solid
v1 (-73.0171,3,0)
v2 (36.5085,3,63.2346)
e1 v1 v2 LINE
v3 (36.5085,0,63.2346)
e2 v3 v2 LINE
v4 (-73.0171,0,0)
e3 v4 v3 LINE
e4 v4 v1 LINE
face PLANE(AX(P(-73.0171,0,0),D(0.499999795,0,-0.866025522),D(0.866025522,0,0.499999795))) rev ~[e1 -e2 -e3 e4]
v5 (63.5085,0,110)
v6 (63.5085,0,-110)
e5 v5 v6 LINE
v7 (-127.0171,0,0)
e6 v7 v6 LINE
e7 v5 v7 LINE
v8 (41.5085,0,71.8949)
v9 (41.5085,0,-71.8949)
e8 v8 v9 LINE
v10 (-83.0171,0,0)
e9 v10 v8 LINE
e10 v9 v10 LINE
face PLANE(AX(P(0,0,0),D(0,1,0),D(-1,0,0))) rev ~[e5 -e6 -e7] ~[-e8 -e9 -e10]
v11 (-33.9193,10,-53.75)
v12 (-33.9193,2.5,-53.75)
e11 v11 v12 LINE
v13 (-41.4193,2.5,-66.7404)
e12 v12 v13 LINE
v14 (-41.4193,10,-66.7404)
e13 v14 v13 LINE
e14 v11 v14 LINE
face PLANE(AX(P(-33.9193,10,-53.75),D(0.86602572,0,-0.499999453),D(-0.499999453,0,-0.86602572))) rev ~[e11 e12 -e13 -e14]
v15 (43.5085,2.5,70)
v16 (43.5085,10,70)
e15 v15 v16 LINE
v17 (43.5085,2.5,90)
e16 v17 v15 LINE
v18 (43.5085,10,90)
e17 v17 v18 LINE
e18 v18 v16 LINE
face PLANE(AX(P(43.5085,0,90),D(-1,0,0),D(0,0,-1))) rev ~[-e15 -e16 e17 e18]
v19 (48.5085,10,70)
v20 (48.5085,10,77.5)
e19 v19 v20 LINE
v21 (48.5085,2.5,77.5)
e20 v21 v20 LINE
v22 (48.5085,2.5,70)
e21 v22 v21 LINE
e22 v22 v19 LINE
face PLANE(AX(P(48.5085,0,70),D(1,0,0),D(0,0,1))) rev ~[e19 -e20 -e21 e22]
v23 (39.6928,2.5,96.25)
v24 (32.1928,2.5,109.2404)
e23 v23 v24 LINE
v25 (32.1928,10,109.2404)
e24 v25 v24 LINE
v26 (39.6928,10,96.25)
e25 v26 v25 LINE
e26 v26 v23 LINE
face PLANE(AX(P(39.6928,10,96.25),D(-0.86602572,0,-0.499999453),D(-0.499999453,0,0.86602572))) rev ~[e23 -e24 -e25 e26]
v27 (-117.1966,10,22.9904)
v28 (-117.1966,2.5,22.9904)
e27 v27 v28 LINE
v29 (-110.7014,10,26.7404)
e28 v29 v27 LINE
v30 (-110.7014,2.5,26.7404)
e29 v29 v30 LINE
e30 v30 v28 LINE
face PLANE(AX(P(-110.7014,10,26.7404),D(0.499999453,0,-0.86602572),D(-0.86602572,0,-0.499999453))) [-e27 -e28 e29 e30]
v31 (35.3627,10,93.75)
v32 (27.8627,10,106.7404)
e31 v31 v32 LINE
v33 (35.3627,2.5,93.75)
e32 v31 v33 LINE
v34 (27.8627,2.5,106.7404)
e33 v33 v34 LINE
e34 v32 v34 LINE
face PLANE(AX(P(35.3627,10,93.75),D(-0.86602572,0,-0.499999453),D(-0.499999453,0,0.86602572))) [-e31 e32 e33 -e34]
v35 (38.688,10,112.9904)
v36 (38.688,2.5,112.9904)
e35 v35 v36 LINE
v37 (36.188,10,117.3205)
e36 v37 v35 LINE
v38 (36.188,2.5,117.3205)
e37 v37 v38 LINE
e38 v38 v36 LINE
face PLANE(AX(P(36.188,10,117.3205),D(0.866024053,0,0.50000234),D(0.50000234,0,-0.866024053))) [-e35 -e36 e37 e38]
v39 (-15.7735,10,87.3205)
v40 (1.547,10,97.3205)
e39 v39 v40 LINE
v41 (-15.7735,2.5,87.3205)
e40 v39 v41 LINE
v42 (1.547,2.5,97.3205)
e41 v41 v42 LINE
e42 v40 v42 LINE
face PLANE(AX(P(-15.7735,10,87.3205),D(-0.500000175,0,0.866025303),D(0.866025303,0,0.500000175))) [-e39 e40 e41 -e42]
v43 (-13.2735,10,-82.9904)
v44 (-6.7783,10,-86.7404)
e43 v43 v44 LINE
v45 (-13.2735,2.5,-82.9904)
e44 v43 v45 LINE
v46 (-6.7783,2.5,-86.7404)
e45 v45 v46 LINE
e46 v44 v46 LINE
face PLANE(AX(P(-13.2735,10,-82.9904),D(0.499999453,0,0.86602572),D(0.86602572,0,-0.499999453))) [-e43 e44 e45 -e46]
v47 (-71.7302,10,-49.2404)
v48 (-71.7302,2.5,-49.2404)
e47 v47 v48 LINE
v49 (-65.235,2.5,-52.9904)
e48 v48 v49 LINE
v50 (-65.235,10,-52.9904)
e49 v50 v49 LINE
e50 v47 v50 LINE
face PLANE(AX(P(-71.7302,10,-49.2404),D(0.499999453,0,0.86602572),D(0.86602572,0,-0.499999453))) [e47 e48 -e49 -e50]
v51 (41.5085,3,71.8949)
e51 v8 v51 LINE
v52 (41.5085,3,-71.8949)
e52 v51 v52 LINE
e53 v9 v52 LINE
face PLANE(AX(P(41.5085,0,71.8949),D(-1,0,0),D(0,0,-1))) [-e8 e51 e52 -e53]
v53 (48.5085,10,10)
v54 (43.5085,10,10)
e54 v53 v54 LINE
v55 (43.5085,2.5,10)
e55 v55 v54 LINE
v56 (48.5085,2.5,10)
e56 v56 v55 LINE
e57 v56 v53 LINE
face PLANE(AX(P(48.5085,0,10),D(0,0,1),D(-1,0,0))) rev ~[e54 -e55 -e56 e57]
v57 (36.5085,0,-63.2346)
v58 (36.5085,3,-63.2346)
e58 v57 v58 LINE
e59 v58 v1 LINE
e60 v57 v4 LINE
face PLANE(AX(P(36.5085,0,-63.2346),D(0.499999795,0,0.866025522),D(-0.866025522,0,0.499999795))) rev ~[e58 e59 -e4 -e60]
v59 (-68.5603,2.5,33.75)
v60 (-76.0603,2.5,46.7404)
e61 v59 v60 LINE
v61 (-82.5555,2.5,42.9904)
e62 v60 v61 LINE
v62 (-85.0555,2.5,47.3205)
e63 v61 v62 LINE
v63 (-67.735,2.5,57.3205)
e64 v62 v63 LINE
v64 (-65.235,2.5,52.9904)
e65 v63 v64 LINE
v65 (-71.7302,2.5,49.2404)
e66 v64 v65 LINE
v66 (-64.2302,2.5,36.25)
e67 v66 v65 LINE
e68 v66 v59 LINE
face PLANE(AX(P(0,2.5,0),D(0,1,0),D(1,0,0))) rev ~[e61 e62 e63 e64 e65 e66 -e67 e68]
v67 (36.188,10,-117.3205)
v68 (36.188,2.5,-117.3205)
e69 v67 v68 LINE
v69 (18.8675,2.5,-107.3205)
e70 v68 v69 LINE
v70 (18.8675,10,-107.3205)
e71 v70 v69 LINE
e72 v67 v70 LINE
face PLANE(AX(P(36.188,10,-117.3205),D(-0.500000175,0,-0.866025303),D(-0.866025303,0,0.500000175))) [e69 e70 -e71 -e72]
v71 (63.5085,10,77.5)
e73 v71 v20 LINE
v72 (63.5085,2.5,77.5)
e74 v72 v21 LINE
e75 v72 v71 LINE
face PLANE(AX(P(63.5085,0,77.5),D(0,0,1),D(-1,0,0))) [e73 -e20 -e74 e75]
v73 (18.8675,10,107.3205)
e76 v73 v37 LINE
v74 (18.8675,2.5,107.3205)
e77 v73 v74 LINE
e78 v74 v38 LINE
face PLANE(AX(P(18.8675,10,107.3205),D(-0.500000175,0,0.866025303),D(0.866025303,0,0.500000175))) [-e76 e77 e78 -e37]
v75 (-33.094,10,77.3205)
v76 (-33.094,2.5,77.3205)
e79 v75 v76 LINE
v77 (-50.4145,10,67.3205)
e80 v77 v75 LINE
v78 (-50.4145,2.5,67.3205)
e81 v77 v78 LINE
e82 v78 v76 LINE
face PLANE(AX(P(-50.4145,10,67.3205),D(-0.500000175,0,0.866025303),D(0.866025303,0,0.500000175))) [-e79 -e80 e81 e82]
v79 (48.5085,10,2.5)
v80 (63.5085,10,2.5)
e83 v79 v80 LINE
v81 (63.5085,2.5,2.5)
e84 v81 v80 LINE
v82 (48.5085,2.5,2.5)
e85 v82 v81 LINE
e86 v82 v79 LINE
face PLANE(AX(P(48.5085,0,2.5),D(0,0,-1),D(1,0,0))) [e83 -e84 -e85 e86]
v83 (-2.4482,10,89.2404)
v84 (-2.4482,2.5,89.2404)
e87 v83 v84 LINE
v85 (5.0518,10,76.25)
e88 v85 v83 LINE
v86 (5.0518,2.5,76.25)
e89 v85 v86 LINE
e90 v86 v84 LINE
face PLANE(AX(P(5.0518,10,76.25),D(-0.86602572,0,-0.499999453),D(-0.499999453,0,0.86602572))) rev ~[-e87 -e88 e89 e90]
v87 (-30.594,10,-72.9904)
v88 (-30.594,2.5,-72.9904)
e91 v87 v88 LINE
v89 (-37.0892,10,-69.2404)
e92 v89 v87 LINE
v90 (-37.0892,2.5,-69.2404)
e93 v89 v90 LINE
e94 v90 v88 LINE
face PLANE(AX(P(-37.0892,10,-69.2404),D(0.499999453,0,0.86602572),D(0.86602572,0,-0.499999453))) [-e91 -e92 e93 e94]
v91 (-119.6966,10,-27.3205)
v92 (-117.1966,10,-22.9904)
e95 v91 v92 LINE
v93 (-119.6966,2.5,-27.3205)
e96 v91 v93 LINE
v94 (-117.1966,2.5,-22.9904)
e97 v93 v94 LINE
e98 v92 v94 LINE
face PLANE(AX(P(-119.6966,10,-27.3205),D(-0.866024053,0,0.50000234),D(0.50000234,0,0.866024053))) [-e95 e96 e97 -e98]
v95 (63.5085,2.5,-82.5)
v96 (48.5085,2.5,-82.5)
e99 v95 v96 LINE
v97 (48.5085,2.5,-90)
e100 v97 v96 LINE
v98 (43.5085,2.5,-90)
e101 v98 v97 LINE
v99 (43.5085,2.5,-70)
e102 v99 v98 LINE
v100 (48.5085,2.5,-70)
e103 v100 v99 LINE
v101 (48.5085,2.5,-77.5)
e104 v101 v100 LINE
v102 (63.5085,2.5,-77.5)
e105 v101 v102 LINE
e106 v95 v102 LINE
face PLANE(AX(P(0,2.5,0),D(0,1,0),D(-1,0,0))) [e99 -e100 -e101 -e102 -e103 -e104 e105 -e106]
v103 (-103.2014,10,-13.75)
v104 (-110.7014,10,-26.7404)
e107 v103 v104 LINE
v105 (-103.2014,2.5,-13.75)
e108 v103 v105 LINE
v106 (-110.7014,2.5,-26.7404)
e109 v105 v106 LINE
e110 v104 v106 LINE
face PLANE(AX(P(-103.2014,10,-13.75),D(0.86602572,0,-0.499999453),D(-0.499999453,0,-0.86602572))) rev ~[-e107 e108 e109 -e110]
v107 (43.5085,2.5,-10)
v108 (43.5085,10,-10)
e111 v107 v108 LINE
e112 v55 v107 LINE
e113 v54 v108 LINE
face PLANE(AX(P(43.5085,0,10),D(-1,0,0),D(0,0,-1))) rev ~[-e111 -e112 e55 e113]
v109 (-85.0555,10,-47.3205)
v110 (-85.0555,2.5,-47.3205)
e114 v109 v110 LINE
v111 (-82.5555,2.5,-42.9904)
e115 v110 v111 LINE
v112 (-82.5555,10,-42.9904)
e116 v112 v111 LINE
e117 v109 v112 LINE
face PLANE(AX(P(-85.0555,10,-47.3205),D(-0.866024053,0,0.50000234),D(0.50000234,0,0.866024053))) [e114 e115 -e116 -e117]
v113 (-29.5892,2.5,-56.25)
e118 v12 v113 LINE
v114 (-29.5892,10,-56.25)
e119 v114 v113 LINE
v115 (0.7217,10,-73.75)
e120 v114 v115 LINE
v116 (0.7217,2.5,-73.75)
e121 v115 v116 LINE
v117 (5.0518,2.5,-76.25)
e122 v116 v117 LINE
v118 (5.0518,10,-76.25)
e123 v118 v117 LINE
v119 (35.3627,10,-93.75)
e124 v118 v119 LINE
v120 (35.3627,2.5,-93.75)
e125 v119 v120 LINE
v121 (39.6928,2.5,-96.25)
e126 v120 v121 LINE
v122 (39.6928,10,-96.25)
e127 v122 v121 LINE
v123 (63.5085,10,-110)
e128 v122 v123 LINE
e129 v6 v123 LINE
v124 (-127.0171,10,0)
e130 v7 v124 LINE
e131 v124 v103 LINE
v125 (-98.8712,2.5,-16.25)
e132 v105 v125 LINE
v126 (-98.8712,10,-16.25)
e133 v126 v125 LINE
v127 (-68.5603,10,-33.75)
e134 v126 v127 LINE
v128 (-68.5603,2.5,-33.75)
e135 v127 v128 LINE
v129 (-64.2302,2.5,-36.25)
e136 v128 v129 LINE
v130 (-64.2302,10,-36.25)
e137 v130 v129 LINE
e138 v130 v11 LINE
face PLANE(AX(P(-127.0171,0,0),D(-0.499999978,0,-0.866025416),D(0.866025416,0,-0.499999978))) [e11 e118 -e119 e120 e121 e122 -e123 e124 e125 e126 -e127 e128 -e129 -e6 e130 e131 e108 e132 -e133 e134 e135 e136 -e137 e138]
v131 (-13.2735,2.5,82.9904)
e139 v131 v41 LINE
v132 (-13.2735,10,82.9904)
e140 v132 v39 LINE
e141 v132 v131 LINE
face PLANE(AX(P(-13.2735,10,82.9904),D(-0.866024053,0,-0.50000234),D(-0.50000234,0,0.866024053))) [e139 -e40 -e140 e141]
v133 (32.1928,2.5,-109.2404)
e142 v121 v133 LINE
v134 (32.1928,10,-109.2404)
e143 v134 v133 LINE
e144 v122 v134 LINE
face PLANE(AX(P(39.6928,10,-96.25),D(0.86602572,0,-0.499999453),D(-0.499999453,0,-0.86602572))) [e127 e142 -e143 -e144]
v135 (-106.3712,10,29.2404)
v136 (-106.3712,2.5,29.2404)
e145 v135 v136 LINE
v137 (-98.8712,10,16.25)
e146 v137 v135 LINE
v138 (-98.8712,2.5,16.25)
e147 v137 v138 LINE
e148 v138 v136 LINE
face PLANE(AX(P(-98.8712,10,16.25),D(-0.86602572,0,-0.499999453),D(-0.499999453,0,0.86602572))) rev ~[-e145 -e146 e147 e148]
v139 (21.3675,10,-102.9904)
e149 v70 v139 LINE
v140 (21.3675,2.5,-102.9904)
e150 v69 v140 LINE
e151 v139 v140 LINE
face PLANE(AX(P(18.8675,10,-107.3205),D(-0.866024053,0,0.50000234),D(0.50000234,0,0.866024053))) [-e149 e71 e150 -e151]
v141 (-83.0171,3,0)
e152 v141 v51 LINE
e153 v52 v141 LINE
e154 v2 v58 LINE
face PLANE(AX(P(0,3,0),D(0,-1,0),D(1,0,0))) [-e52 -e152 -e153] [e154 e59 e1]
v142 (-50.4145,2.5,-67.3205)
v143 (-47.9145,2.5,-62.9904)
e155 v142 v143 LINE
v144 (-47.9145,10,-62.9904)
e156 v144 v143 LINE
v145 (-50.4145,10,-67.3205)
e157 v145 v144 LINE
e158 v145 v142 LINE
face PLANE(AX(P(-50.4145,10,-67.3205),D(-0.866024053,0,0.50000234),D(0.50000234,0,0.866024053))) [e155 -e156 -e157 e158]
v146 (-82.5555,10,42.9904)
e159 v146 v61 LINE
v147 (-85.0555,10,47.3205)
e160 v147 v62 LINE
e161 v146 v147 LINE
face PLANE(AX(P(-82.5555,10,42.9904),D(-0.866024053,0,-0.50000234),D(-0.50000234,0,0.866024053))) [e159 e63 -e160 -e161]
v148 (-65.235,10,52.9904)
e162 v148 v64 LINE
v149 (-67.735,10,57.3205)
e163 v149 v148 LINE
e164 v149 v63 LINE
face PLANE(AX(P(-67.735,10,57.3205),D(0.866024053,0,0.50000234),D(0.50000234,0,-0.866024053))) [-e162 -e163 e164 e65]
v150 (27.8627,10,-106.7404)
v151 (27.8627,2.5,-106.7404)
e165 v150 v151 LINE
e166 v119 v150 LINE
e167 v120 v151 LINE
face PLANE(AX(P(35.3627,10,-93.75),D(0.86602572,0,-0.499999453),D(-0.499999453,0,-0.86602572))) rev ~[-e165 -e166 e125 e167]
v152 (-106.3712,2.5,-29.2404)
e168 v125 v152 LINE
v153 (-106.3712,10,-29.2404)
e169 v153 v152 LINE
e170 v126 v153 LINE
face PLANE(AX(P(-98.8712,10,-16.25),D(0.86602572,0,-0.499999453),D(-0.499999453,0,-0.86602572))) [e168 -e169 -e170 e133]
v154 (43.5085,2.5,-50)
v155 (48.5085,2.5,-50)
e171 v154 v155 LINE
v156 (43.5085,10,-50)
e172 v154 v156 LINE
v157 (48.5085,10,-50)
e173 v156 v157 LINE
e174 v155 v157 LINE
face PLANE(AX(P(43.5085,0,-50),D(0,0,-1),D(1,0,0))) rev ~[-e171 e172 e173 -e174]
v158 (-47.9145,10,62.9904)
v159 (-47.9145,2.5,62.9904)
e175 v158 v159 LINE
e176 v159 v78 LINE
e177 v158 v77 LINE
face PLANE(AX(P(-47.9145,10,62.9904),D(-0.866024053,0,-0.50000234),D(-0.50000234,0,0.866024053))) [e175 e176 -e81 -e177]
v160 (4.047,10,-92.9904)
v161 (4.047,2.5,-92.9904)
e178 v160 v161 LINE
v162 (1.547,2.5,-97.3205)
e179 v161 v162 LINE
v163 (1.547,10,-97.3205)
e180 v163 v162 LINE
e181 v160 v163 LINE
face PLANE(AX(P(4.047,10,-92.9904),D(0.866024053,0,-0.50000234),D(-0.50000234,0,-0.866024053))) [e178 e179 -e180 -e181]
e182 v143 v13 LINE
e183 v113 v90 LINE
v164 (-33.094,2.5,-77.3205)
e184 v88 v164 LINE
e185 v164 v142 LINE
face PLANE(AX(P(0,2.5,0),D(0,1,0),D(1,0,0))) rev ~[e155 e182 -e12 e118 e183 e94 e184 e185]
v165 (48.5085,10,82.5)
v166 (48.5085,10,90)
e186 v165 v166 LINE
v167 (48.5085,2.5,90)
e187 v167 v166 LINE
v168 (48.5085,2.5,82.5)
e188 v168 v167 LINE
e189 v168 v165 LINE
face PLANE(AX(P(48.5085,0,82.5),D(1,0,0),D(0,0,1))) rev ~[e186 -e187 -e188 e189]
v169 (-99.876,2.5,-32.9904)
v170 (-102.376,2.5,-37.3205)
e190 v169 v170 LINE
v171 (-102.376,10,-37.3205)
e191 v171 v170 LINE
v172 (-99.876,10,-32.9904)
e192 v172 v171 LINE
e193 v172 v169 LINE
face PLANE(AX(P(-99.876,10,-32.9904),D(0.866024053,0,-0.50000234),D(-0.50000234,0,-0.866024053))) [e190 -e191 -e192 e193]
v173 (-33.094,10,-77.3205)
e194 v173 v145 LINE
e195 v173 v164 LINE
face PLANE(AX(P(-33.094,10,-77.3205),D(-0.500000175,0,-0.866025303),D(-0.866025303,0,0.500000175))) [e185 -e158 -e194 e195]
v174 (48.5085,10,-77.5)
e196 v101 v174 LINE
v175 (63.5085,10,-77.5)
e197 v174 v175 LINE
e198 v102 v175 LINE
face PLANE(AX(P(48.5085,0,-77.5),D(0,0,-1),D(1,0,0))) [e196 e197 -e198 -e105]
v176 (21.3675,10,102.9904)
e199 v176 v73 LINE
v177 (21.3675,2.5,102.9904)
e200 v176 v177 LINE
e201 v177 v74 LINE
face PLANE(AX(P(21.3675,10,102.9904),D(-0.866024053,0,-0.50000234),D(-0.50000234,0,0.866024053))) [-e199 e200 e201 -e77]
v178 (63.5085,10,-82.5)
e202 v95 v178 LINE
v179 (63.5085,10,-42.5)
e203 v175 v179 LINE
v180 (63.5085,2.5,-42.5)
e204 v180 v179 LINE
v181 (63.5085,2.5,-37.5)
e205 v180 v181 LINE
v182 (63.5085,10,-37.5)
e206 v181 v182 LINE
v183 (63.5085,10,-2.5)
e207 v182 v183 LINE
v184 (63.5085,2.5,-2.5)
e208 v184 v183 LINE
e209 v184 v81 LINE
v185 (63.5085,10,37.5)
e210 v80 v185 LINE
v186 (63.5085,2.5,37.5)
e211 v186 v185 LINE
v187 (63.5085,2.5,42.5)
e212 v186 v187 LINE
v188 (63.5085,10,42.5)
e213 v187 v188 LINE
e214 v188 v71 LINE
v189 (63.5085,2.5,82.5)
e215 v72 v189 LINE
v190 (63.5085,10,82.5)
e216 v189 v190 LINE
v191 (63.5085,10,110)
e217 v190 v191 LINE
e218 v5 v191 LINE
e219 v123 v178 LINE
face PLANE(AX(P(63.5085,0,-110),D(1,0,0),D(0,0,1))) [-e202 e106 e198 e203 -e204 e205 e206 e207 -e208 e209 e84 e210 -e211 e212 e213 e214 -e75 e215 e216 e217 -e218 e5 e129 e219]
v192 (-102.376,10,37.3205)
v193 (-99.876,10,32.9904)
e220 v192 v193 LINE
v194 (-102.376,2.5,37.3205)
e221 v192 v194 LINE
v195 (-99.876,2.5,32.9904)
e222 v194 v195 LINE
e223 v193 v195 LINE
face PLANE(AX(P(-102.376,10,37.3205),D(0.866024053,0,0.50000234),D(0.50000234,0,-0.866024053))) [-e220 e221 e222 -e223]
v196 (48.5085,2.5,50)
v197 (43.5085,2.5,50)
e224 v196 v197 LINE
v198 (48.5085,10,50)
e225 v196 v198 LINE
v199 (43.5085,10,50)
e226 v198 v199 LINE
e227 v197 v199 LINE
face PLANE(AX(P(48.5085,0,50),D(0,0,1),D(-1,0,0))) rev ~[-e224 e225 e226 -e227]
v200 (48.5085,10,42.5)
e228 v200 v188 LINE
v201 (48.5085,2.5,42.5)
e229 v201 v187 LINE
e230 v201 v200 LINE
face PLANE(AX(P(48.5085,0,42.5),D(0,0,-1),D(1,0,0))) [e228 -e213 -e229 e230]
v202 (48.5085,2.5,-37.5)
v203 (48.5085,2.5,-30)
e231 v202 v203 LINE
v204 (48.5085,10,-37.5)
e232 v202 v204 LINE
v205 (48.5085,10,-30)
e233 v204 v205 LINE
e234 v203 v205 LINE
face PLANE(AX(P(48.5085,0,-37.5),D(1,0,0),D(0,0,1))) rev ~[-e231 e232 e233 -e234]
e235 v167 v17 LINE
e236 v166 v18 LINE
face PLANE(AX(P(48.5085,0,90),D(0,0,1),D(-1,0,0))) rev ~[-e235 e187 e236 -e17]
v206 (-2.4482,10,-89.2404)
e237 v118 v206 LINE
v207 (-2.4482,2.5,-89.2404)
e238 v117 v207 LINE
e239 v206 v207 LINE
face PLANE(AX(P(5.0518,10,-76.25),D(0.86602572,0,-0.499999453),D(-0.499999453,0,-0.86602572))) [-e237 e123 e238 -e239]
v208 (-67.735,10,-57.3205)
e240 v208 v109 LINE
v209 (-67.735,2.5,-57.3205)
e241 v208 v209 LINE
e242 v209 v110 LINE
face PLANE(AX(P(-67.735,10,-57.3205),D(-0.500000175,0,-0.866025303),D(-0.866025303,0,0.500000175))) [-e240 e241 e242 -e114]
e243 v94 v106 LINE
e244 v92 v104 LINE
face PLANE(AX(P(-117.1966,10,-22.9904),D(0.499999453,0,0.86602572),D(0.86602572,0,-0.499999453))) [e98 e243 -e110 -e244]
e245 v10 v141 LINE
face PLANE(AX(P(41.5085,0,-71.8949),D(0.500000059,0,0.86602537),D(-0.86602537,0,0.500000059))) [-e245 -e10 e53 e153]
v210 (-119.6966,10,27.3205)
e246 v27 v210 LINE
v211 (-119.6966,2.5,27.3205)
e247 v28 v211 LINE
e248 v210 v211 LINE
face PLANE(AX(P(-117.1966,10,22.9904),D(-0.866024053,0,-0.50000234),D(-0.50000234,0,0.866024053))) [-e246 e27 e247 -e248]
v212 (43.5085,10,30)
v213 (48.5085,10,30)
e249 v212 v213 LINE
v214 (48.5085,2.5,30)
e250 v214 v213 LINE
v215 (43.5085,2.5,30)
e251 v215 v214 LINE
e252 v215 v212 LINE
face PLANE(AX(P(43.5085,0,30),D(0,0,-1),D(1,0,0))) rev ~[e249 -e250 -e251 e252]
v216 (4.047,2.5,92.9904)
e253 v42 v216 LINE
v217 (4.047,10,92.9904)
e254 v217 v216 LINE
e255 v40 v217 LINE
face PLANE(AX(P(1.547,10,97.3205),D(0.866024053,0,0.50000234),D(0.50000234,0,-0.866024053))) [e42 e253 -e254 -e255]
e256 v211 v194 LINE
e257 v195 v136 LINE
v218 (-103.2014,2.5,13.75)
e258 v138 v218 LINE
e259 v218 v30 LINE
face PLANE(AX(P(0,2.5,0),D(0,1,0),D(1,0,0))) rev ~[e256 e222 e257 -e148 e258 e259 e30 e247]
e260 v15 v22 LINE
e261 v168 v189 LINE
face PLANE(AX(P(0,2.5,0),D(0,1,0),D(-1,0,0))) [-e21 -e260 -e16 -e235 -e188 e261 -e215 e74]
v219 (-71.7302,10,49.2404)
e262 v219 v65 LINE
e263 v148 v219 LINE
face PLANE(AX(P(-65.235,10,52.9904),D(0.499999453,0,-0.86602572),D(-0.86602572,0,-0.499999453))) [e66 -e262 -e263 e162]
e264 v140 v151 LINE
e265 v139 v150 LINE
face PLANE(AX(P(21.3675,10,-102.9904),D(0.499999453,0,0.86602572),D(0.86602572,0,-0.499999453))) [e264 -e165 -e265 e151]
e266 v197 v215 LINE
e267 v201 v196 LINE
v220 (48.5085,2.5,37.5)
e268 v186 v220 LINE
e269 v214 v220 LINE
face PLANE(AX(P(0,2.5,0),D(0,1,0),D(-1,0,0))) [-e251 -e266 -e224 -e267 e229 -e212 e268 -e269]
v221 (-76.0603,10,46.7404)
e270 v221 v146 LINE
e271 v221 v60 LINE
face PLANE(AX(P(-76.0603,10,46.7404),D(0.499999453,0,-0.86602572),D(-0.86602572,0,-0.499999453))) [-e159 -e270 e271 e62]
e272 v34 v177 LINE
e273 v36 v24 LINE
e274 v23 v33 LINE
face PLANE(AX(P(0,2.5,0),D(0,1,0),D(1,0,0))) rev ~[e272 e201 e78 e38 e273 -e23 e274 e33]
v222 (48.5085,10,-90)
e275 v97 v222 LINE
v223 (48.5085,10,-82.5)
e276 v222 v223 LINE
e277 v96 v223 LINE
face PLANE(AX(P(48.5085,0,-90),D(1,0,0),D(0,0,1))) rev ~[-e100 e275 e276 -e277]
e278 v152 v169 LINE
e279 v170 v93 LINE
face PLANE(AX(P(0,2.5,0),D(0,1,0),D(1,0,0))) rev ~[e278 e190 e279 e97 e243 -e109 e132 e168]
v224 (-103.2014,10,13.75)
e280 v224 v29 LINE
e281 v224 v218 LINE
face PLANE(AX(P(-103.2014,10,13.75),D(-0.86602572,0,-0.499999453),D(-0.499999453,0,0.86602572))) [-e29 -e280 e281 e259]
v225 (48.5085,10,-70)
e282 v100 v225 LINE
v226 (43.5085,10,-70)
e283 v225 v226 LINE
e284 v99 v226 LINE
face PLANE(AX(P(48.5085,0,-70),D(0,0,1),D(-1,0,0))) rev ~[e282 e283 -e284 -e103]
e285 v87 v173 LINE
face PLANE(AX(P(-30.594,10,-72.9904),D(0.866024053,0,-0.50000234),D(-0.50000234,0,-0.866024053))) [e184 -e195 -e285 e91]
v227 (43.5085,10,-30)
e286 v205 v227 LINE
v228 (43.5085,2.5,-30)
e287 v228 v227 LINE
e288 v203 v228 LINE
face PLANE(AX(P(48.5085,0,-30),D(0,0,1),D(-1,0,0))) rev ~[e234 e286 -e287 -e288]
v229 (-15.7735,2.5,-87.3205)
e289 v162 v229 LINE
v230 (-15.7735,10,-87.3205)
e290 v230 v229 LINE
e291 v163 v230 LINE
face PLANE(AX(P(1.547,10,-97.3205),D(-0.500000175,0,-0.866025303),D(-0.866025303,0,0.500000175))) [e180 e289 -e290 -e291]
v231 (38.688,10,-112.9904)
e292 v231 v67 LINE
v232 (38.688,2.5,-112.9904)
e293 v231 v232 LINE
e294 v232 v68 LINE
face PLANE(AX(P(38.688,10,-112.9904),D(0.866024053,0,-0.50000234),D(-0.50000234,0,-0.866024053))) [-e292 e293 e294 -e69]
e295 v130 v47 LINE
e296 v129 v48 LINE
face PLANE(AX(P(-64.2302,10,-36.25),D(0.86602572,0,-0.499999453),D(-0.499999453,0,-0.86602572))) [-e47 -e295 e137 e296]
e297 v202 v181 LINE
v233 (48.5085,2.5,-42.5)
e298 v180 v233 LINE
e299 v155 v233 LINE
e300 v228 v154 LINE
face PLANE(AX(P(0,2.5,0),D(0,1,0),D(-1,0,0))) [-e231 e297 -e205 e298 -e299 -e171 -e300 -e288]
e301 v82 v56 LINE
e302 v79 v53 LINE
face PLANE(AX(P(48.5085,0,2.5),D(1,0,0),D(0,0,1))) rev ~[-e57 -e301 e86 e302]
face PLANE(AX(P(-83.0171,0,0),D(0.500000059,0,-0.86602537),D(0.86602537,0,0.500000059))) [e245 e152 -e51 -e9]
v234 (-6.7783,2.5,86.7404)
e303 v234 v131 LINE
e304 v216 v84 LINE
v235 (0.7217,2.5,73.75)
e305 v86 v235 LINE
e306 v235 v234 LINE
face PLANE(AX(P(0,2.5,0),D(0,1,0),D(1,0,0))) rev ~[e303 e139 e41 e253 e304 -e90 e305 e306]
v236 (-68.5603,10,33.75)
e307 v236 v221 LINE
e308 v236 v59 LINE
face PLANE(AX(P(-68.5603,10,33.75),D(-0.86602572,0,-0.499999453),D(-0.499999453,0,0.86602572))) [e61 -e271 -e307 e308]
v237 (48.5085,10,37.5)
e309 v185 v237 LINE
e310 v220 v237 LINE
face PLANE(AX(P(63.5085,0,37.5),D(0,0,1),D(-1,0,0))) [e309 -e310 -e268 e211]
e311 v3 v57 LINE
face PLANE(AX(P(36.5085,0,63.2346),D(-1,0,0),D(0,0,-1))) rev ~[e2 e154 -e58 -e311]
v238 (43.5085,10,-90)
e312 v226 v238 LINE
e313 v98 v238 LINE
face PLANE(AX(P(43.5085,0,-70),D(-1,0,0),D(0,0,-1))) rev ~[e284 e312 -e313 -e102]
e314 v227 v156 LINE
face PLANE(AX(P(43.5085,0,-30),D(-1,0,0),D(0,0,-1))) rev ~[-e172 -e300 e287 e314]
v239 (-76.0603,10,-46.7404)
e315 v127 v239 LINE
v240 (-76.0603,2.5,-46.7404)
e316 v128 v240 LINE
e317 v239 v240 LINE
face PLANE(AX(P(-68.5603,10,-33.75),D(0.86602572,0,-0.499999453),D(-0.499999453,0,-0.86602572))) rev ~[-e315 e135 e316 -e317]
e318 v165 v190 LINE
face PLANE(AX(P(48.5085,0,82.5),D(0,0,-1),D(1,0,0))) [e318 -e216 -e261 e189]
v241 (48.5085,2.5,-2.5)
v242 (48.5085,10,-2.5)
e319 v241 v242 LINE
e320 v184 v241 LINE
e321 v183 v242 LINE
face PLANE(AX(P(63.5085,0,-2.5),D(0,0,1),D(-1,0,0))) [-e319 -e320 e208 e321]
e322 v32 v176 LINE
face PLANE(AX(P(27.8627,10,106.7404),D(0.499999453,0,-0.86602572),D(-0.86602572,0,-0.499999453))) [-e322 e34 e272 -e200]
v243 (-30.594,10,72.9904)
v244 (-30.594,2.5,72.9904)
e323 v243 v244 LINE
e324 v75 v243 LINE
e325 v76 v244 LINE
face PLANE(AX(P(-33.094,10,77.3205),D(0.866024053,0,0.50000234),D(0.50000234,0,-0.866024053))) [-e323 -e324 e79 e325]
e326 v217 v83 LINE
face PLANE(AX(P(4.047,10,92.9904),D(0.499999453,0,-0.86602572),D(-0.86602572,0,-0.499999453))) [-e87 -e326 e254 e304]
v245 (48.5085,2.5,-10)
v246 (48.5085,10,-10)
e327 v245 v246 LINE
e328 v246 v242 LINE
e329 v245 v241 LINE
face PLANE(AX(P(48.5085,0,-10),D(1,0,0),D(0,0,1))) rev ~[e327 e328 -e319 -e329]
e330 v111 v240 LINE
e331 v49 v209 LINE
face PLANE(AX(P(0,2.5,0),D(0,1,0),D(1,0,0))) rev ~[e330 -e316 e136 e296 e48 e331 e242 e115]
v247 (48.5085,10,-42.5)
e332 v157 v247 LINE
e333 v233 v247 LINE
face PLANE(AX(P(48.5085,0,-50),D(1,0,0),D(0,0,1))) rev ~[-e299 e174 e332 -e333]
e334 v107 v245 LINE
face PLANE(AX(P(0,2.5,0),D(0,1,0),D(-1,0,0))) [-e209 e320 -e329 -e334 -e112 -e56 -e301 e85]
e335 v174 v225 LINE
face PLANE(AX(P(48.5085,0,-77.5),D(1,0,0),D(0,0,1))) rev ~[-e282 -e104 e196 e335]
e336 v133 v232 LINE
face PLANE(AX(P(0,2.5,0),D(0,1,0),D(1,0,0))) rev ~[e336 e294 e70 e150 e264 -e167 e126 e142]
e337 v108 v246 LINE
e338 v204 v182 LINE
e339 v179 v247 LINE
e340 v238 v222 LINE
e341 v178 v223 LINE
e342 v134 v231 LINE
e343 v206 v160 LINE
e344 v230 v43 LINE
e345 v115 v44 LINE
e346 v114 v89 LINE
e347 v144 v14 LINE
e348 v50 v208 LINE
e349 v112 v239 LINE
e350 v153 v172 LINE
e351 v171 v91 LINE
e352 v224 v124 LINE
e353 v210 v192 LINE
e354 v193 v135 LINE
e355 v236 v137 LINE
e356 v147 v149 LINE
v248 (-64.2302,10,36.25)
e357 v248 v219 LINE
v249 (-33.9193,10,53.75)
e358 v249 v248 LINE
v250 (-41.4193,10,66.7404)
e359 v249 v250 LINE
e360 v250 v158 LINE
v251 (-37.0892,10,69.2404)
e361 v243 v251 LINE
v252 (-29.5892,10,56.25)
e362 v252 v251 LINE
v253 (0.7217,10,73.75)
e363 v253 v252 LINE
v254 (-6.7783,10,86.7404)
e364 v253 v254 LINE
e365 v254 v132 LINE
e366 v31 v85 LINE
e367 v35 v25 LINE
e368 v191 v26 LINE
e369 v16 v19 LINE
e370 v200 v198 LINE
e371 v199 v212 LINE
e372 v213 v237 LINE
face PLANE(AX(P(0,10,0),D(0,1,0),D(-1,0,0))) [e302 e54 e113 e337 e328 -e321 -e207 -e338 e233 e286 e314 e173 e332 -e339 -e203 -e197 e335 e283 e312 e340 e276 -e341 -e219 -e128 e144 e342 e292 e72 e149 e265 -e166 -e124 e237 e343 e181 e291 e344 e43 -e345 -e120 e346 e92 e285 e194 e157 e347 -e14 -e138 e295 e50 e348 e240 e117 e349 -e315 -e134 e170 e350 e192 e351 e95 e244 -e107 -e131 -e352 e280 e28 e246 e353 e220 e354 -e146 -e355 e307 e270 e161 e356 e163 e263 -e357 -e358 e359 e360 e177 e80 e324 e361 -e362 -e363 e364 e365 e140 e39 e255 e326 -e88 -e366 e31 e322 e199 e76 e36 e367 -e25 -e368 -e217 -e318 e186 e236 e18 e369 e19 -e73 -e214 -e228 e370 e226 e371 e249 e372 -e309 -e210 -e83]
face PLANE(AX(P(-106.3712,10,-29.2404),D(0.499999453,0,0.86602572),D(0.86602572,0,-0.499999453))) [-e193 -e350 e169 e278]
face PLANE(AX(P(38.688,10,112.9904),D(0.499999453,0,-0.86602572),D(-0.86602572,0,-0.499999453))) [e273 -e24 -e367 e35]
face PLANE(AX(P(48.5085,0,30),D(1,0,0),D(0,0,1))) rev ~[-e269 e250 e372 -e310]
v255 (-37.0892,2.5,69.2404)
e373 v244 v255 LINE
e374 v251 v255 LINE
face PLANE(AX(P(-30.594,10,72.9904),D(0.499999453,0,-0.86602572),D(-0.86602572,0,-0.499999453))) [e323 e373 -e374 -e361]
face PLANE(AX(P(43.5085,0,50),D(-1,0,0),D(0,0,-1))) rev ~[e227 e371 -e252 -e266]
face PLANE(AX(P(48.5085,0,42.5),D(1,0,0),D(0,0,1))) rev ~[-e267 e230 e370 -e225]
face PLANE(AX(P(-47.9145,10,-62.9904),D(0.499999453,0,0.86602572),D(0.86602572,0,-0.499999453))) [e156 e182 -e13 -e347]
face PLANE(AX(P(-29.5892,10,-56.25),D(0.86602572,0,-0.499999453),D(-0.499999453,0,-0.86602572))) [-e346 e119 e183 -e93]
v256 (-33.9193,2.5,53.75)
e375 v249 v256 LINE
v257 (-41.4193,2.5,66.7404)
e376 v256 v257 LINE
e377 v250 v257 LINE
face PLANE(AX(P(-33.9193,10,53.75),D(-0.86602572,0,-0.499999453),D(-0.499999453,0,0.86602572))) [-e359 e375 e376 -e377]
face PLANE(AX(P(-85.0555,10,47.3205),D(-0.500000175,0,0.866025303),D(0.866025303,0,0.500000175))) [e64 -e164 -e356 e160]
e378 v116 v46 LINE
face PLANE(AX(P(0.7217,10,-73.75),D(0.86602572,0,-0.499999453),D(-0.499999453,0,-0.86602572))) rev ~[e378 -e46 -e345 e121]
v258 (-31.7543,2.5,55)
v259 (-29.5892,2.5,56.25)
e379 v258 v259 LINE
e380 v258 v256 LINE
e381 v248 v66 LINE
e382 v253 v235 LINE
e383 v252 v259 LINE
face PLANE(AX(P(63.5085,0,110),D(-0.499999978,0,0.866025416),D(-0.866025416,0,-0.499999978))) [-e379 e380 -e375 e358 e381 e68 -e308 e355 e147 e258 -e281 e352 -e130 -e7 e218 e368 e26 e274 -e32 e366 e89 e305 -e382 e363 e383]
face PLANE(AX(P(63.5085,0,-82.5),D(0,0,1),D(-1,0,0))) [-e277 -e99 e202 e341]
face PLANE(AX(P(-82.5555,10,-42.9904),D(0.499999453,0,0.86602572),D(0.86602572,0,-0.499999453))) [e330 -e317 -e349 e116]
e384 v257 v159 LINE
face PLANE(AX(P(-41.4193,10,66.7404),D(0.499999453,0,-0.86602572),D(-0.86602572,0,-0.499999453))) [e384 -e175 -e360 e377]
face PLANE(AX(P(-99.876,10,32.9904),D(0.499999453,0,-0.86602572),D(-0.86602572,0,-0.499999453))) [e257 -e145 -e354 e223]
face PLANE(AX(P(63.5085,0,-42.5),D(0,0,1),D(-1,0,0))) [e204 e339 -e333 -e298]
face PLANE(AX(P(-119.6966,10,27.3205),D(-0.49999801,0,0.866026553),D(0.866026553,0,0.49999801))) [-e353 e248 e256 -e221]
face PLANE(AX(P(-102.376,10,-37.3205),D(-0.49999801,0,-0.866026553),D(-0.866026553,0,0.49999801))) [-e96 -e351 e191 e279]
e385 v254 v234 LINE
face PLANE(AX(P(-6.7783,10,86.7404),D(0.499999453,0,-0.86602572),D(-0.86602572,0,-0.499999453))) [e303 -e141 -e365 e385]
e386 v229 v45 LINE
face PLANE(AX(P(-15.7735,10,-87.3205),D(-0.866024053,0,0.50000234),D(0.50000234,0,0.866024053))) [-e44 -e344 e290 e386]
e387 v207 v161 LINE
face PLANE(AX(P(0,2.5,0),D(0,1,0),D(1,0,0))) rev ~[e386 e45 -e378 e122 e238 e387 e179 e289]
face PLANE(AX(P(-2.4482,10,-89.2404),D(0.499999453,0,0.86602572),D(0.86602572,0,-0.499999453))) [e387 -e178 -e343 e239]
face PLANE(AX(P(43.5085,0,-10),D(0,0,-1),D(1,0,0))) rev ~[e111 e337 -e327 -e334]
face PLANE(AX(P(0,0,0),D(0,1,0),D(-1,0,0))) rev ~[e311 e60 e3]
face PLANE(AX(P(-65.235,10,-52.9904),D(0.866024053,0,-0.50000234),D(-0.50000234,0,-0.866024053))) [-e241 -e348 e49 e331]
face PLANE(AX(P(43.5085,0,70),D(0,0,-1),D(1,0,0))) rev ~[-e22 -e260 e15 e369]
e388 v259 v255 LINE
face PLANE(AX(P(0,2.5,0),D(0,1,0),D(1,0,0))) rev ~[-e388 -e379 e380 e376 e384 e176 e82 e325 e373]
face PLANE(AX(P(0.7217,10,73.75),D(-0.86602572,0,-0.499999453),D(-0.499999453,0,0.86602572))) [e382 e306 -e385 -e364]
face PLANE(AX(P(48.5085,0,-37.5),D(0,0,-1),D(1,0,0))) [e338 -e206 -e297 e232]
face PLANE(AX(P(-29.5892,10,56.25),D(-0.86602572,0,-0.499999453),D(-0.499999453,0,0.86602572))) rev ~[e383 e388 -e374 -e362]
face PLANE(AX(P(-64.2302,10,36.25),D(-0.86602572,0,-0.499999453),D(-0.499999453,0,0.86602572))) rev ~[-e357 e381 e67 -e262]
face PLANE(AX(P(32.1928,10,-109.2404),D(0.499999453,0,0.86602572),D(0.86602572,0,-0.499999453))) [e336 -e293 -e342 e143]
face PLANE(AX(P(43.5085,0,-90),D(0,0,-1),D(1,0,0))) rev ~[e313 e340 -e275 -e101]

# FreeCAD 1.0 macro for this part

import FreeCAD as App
import Part
import Sketcher
Q = App.Units.Quantity


def add_polygon(sketch, points):
    """Adds a closed chain of lines whose ends are joined by coincident constraints."""
    first, n = sketch.GeometryCount, len(points)
    for a, b in zip(points, points[1:] + points[:1]):
        sketch.addGeometry(Part.LineSegment(App.Vector(*a, 0), App.Vector(*b, 0)), False)
    for i in range(n):
        sketch.addConstraint(Sketcher.Constraint("Coincident", first + i, 2, first + (i + 1) % n, 1))

doc = App.newDocument("Part")
params = doc.addObject("Spreadsheet::Sheet", "Params")
for row, (alias, value) in enumerate([
    ("sketch1_height", "220 mm"),
    ("sketch1_length", "220 mm"),
    ("pad1_length", "10 mm"),
    ("sketch2_width", "5 mm"),
    ("sketch2_height", "20 mm"),
    ("pocket1_length", "10 mm"),
    ("sketch3_width", "5 mm"),
    ("sketch3_height", "20 mm"),
    ("pad2_length", "2.5 mm"),
    ("pocket2_length", "3 mm"),
    ("sketch5_length", "5 mm"),
    ("sketch5_length2", "15 mm"),
    ("sketch5_length3", "20 mm"),
    ("pad3_length", "7.5 mm"),
], start=1):
    params.set(f"A{row}", alias)
    params.set(f"B{row}", "=" + value)
    params.setAlias(f"B{row}", alias)

body = doc.addObject("PartDesign::Body", "Body")

sketch1 = body.newObject("Sketcher::SketchObject", "Sketch")
sketch1.AttachmentSupport = (doc.getObject("XZ_Plane"), [""])
sketch1.MapMode = "FlatFace"
add_polygon(sketch1, [(63.5085, -110), (-127.0171, 0), (63.5085, 110)])
sketch1.addConstraint([
    Sketcher.Constraint("Vertical", 2),
    Sketcher.Constraint("PointOnObject", 0, 2, -1),
    Sketcher.Constraint("Equal", 0, 1),
    Sketcher.Constraint("DistanceY", 2, 2, 2, 1, Q("220 mm")),
    Sketcher.Constraint("Distance", 0, Q("220 mm")),
    Sketcher.Constraint("DistanceX", 0, 2, -1, 1, Q("127.017 mm")),
])
sketch1.setExpression("Constraints[6]", "Params.sketch1_height")
sketch1.setExpression("Constraints[7]", "Params.sketch1_length")
pad1 = body.newObject("PartDesign::Pad", "Pad")
pad1.Profile = sketch1
pad1.setExpression("Length", "Params.pad1_length")
pad1.Reversed = True

sketch2 = body.newObject("Sketcher::SketchObject", "Sketch001")
sketch2.AttachmentSupport = (doc.getObject("XZ_Plane"), [""])
sketch2.MapMode = "FlatFace"
add_polygon(sketch2, [(48.5085, 82.5), (63.5085, 82.5), (63.5085, 77.5), (48.5085, 77.5), (48.5085, 70), (43.5085, 70), (43.5085, 90), (48.5085, 90)])
add_polygon(sketch2, [(63.5085, -77.5), (63.5085, -82.5), (48.5085, -82.5), (48.5085, -90), (43.5085, -90), (43.5085, -70), (48.5085, -70), (48.5085, -77.5)])
add_polygon(sketch2, [(48.5085, 42.5), (63.5085, 42.5), (63.5085, 37.5), (48.5085, 37.5), (48.5085, 30), (43.5085, 30), (43.5085, 50), (48.5085, 50)])
add_polygon(sketch2, [(63.5085, -37.5), (63.5085, -42.5), (48.5085, -42.5), (48.5085, -50), (43.5085, -50), (43.5085, -30), (48.5085, -30), (48.5085, -37.5)])
add_polygon(sketch2, [(48.5085, 2.5), (63.5085, 2.5), (63.5085, -2.5), (48.5085, -2.5), (48.5085, -10), (43.5085, -10), (43.5085, 10), (48.5085, 10)])
sketch2.addConstraint([
    Sketcher.Constraint("Horizontal", 0),
    Sketcher.Constraint("Vertical", 1),
    Sketcher.Constraint("Horizontal", 2),
    Sketcher.Constraint("Vertical", 3),
    Sketcher.Constraint("Horizontal", 4),
    Sketcher.Constraint("Vertical", 5),
    Sketcher.Constraint("Horizontal", 6),
    Sketcher.Constraint("Vertical", 7),
    Sketcher.Constraint("Vertical", 8),
    Sketcher.Constraint("Horizontal", 9),
    Sketcher.Constraint("Vertical", 10),
    Sketcher.Constraint("Horizontal", 11),
    Sketcher.Constraint("Vertical", 12),
    Sketcher.Constraint("Horizontal", 13),
    Sketcher.Constraint("Vertical", 14),
    Sketcher.Constraint("Horizontal", 15),
    Sketcher.Constraint("Horizontal", 16),
    Sketcher.Constraint("Vertical", 17),
    Sketcher.Constraint("Horizontal", 18),
    Sketcher.Constraint("Vertical", 19),
    Sketcher.Constraint("Horizontal", 20),
    Sketcher.Constraint("Vertical", 21),
    Sketcher.Constraint("Horizontal", 22),
    Sketcher.Constraint("Vertical", 23),
    Sketcher.Constraint("Vertical", 24),
    Sketcher.Constraint("Horizontal", 25),
    Sketcher.Constraint("Vertical", 26),
    Sketcher.Constraint("Horizontal", 27),
    Sketcher.Constraint("Vertical", 28),
    Sketcher.Constraint("Horizontal", 29),
    Sketcher.Constraint("Vertical", 30),
    Sketcher.Constraint("Horizontal", 31),
    Sketcher.Constraint("Horizontal", 32),
    Sketcher.Constraint("Vertical", 33),
    Sketcher.Constraint("Horizontal", 34),
    Sketcher.Constraint("Vertical", 35),
    Sketcher.Constraint("Horizontal", 36),
    Sketcher.Constraint("Vertical", 37),
    Sketcher.Constraint("Horizontal", 38),
    Sketcher.Constraint("Vertical", 39),
    Sketcher.Constraint("Symmetric", 0, 2, 8, 2, -1),
    Sketcher.Constraint("Symmetric", 6, 2, 10, 2, -1),
    Sketcher.Constraint("Symmetric", 4, 2, 12, 2, -1),
    Sketcher.Constraint("Symmetric", 2, 2, 14, 2, -1),
    Sketcher.Constraint("Symmetric", 16, 2, 24, 2, -1),
    Sketcher.Constraint("Symmetric", 22, 2, 26, 2, -1),
    Sketcher.Constraint("Symmetric", 20, 2, 28, 2, -1),
    Sketcher.Constraint("Symmetric", 18, 2, 30, 2, -1),
    Sketcher.Constraint("Symmetric", 35, 2, 38, 2, -1),
    Sketcher.Constraint("Vertical", 3, 2, 6, 2),
    Sketcher.Constraint("Vertical", 15, 2, 16, 2),
    Sketcher.Constraint("Vertical", 14, 2, 18, 2),
    Sketcher.Constraint("Vertical", 12, 2, 20, 2),
    Sketcher.Constraint("Vertical", 19, 2, 22, 2),
    Sketcher.Constraint("Vertical", 31, 2, 32, 2),
    Sketcher.Constraint("Vertical", 30, 2, 34, 2),
    Sketcher.Constraint("Vertical", 28, 2, 36, 2),
    Sketcher.Constraint("Equal", 38, 1),
    Sketcher.Constraint("Equal", 3, 7),
    Sketcher.Constraint("Equal", 8, 17),
    Sketcher.Constraint("Equal", 14, 19),
    Sketcher.Constraint("Equal", 12, 21),
    Sketcher.Constraint("Equal", 24, 33),
    Sketcher.Constraint("Equal", 30, 35),
    Sketcher.Constraint("Equal", 28, 37),
    Sketcher.Constraint("DistanceX", 4, 2, 4, 1, Q("5 mm")),
    Sketcher.Constraint("DistanceY", 5, 1, 5, 2, Q("20 mm")),
    Sketcher.Constraint("DistanceX", 4, 2, 1, 2, Q("20 mm")),
    Sketcher.Constraint("DistanceY", 16, 2, 1, 2, Q("35 mm")),
    Sketcher.Constraint("DistanceY", 32, 2, 17, 2, Q("35 mm")),
    Sketcher.Constraint("DistanceX", -1, 1, 0, 2, Q("63.5085 mm")),
])
sketch2.setExpression("Constraints[105]", "Params.sketch2_width")
sketch2.setExpression("Constraints[106]", "Params.sketch2_height")
pocket1 = body.newObject("PartDesign::Pocket", "Pocket")
pocket1.Profile = sketch2
pocket1.setExpression("Length", "Params.pocket1_length")

sketch3 = body.newObject("Sketcher::SketchObject", "Sketch002")
sketch3.AttachmentSupport = (doc.getObject("XZ_Plane"), [""])
sketch3.MapMode = "FlatFace"
add_polygon(sketch3, [(48.5085, 82.5), (63.5085, 82.5), (63.5085, 77.5), (48.5085, 77.5), (48.5085, 70), (43.5085, 70), (43.5085, 90), (48.5085, 90)])
add_polygon(sketch3, [(63.5085, -77.5), (63.5085, -82.5), (48.5085, -82.5), (48.5085, -90), (43.5085, -90), (43.5085, -70), (48.5085, -70), (48.5085, -77.5)])
add_polygon(sketch3, [(48.5085, 42.5), (63.5085, 42.5), (63.5085, 37.5), (48.5085, 37.5), (48.5085, 30), (43.5085, 30), (43.5085, 50), (48.5085, 50)])
add_polygon(sketch3, [(63.5085, -37.5), (63.5085, -42.5), (48.5085, -42.5), (48.5085, -50), (43.5085, -50), (43.5085, -30), (48.5085, -30), (48.5085, -37.5)])
add_polygon(sketch3, [(48.5085, 2.5), (63.5085, 2.5), (63.5085, -2.5), (48.5085, -2.5), (48.5085, -10), (43.5085, -10), (43.5085, 10), (48.5085, 10)])
sketch3.addConstraint([
    Sketcher.Constraint("Horizontal", 0),
    Sketcher.Constraint("Vertical", 1),
    Sketcher.Constraint("Horizontal", 2),
    Sketcher.Constraint("Vertical", 3),
    Sketcher.Constraint("Horizontal", 4),
    Sketcher.Constraint("Vertical", 5),
    Sketcher.Constraint("Horizontal", 6),
    Sketcher.Constraint("Vertical", 7),
    Sketcher.Constraint("Vertical", 8),
    Sketcher.Constraint("Horizontal", 9),
    Sketcher.Constraint("Vertical", 10),
    Sketcher.Constraint("Horizontal", 11),
    Sketcher.Constraint("Vertical", 12),
    Sketcher.Constraint("Horizontal", 13),
    Sketcher.Constraint("Vertical", 14),
    Sketcher.Constraint("Horizontal", 15),
    Sketcher.Constraint("Horizontal", 16),
    Sketcher.Constraint("Vertical", 17),
    Sketcher.Constraint("Horizontal", 18),
    Sketcher.Constraint("Vertical", 19),
    Sketcher.Constraint("Horizontal", 20),
    Sketcher.Constraint("Vertical", 21),
    Sketcher.Constraint("Horizontal", 22),
    Sketcher.Constraint("Vertical", 23),
    Sketcher.Constraint("Vertical", 24),
    Sketcher.Constraint("Horizontal", 25),
    Sketcher.Constraint("Vertical", 26),
    Sketcher.Constraint("Horizontal", 27),
    Sketcher.Constraint("Vertical", 28),
    Sketcher.Constraint("Horizontal", 29),
    Sketcher.Constraint("Vertical", 30),
    Sketcher.Constraint("Horizontal", 31),
    Sketcher.Constraint("Horizontal", 32),
    Sketcher.Constraint("Vertical", 33),
    Sketcher.Constraint("Horizontal", 34),
    Sketcher.Constraint("Vertical", 35),
    Sketcher.Constraint("Horizontal", 36),
    Sketcher.Constraint("Vertical", 37),
    Sketcher.Constraint("Horizontal", 38),
    Sketcher.Constraint("Vertical", 39),
    Sketcher.Constraint("Symmetric", 0, 2, 8, 2, -1),
    Sketcher.Constraint("Symmetric", 6, 2, 10, 2, -1),
    Sketcher.Constraint("Symmetric", 4, 2, 12, 2, -1),
    Sketcher.Constraint("Symmetric", 2, 2, 14, 2, -1),
    Sketcher.Constraint("Symmetric", 16, 2, 24, 2, -1),
    Sketcher.Constraint("Symmetric", 22, 2, 26, 2, -1),
    Sketcher.Constraint("Symmetric", 20, 2, 28, 2, -1),
    Sketcher.Constraint("Symmetric", 18, 2, 30, 2, -1),
    Sketcher.Constraint("Symmetric", 35, 2, 38, 2, -1),
    Sketcher.Constraint("Vertical", 3, 2, 6, 2),
    Sketcher.Constraint("Vertical", 15, 2, 16, 2),
    Sketcher.Constraint("Vertical", 14, 2, 18, 2),
    Sketcher.Constraint("Vertical", 12, 2, 20, 2),
    Sketcher.Constraint("Vertical", 19, 2, 22, 2),
    Sketcher.Constraint("Vertical", 31, 2, 32, 2),
    Sketcher.Constraint("Vertical", 30, 2, 34, 2),
    Sketcher.Constraint("Vertical", 28, 2, 36, 2),
    Sketcher.Constraint("Equal", 38, 1),
    Sketcher.Constraint("Equal", 3, 7),
    Sketcher.Constraint("Equal", 8, 17),
    Sketcher.Constraint("Equal", 14, 19),
    Sketcher.Constraint("Equal", 12, 21),
    Sketcher.Constraint("Equal", 24, 33),
    Sketcher.Constraint("Equal", 30, 35),
    Sketcher.Constraint("Equal", 28, 37),
    Sketcher.Constraint("DistanceX", 4, 2, 4, 1, Q("5 mm")),
    Sketcher.Constraint("DistanceY", 5, 1, 5, 2, Q("20 mm")),
    Sketcher.Constraint("DistanceX", 4, 2, 1, 2, Q("20 mm")),
    Sketcher.Constraint("DistanceY", 16, 2, 1, 2, Q("35 mm")),
    Sketcher.Constraint("DistanceY", 32, 2, 17, 2, Q("35 mm")),
    Sketcher.Constraint("DistanceX", -1, 1, 0, 2, Q("63.5085 mm")),
])
sketch3.setExpression("Constraints[105]", "Params.sketch3_width")
sketch3.setExpression("Constraints[106]", "Params.sketch3_height")
pad2 = body.newObject("PartDesign::Pad", "Pad001")
pad2.Profile = sketch3
pad2.setExpression("Length", "Params.pad2_length")
pad2.Reversed = True

sketch4 = body.newObject("Sketcher::SketchObject", "Sketch003")
sketch4.AttachmentSupport = (doc.getObject("XZ_Plane"), [""])
sketch4.MapMode = "FlatFace"
add_polygon(sketch4, [(41.5085, -71.8949), (41.5085, 71.8949), (-83.0171, 0)])
add_polygon(sketch4, [(-73.0171, 0), (36.5085, 63.2346), (36.5085, -63.2346)])
sketch4.addConstraint([
    Sketcher.Constraint("Vertical", 0),
    Sketcher.Constraint("Vertical", 4),
    Sketcher.Constraint("PointOnObject", 1, 2, -1),
    Sketcher.Constraint("PointOnObject", 5, 2, -1),
    Sketcher.Constraint("Parallel", 1, 3),
    Sketcher.Constraint("Parallel", 2, 5),
    Sketcher.Constraint("Equal", 1, 2),
    Sketcher.Constraint("DistanceX", 3, 2, 0, 2, Q("5 mm")),
    Sketcher.Constraint("Angle", 1, Q("-150 deg")),
    Sketcher.Constraint("DistanceX", 1, 2, 5, 2, Q("10 mm")),
    Sketcher.Constraint("DistanceY", 0, 1, 0, 2, Q("143.7898 mm")),
    Sketcher.Constraint("DistanceX", 1, 2, -1, 1, Q("83.017 mm")),
])
pocket2 = body.newObject("PartDesign::Pocket", "Pocket001")
pocket2.Profile = sketch4
pocket2.setExpression("Length", "Params.pocket2_length")

sketch5 = body.newObject("Sketcher::SketchObject", "Sketch004")
sketch5.AttachmentSupport = (doc.getObject("XZ_Plane"), [""])
sketch5.MapMode = "FlatFace"
sketch5.AttachmentOffset = App.Placement(App.Vector(0, 0, -10), App.Rotation())
add_polygon(sketch5, [(39.6928, 96.25), (35.3627, 93.75), (27.8627, 106.7404), (21.3675, 102.9904), (18.8675, 107.3205), (36.188, 117.3205), (38.688, 112.9904), (32.1928, 109.2404)])
add_polygon(sketch5, [(5.0518, 76.25), (0.7217, 73.75), (-6.7783, 86.7404), (-13.2735, 82.9904), (-15.7735, 87.3205), (1.547, 97.3205), (4.047, 92.9904), (-2.4482, 89.2404)])
add_polygon(sketch5, [(-31.754288, 54.999978), (-33.9193, 53.75), (-41.4193, 66.7404), (-47.9145, 62.9904), (-50.4145, 67.3205), (-33.094, 77.3205), (-30.594, 72.9904), (-37.0892, 69.2404), (-29.5892, 56.25)])
add_polygon(sketch5, [(-64.2302, 36.25), (-68.5603, 33.75), (-76.0603, 46.7404), (-82.5555, 42.9904), (-85.0555, 47.3205), (-67.735, 57.3205), (-65.235, 52.9904), (-71.7302, 49.2404)])
add_polygon(sketch5, [(-98.8712, 16.25), (-103.2014, 13.75), (-110.7014, 26.7404), (-117.1966, 22.9904), (-119.6966, 27.3205), (-102.376, 37.3205), (-99.876, 32.9904), (-106.3712, 29.2404)])
add_polygon(sketch5, [(-103.2014, -13.75), (-98.8712, -16.25), (-106.3712, -29.2404), (-99.876, -32.9904), (-102.376, -37.3205), (-119.6966, -27.3205), (-117.1966, -22.9904), (-110.7014, -26.7404)])
add_polygon(sketch5, [(-68.5603, -33.75), (-64.2302, -36.25), (-71.7302, -49.2404), (-65.235, -52.9904), (-67.735, -57.3205), (-85.0555, -47.3205), (-82.5555, -42.9904), (-76.0603, -46.7404)])
add_polygon(sketch5, [(-33.9193, -53.75), (-29.5892, -56.25), (-37.0892, -69.2404), (-30.594, -72.9904), (-33.094, -77.3205), (-50.4145, -67.3205), (-47.9145, -62.9904), (-41.4193, -66.7404)])
add_polygon(sketch5, [(0.7217, -73.75), (5.0518, -76.25), (-2.4482, -89.2404), (4.047, -92.9904), (1.547, -97.3205), (-15.7735, -87.3205), (-13.2735, -82.9904), (-6.7783, -86.7404)])
add_polygon(sketch5, [(35.3627, -93.75), (39.6928, -96.25), (32.1928, -109.2404), (38.688, -112.9904), (36.188, -117.3205), (18.8675, -107.3205), (21.3675, -102.9904), (27.8627, -106.7404)])
sketch5.addConstraint([
    Sketcher.Constraint("Symmetric", 40, 2, 41, 2, -1),
    Sketcher.Constraint("Symmetric", 39, 2, 42, 2, -1),
    Sketcher.Constraint("Symmetric", 38, 2, 43, 2, -1),
    Sketcher.Constraint("Symmetric", 37, 2, 44, 2, -1),
    Sketcher.Constraint("Symmetric", 36, 2, 45, 2, -1),
    Sketcher.Constraint("Symmetric", 35, 2, 46, 2, -1),
    Sketcher.Constraint("Symmetric", 34, 2, 47, 2, -1),
    Sketcher.Constraint("Symmetric", 33, 2, 48, 2, -1),
    Sketcher.Constraint("Symmetric", 32, 2, 49, 2, -1),
    Sketcher.Constraint("Symmetric", 31, 2, 50, 2, -1),
    Sketcher.Constraint("Symmetric", 30, 2, 51, 2, -1),
    Sketcher.Constraint("Symmetric", 29, 2, 52, 2, -1),
    Sketcher.Constraint("Symmetric", 28, 2, 53, 2, -1),
    Sketcher.Constraint("Symmetric", 27, 2, 54, 2, -1),
    Sketcher.Constraint("Symmetric", 26, 2, 55, 2, -1),
    Sketcher.Constraint("Symmetric", 25, 2, 56, 2, -1),
    Sketcher.Constraint("Symmetric", 23, 2, 57, 2, -1),
    Sketcher.Constraint("Symmetric", 22, 2, 58, 2, -1),
    Sketcher.Constraint("Symmetric", 21, 2, 59, 2, -1),
    Sketcher.Constraint("Symmetric", 20, 2, 60, 2, -1),
    Sketcher.Constraint("Symmetric", 19, 2, 61, 2, -1),
    Sketcher.Constraint("Symmetric", 18, 2, 62, 2, -1),
    Sketcher.Constraint("Symmetric", 17, 2, 63, 2, -1),
    Sketcher.Constraint("Symmetric", 16, 2, 64, 2, -1),
    Sketcher.Constraint("Symmetric", 15, 2, 65, 2, -1),
    Sketcher.Constraint("Symmetric", 14, 2, 66, 2, -1),
    Sketcher.Constraint("Symmetric", 13, 2, 67, 2, -1),
    Sketcher.Constraint("Symmetric", 12, 2, 68, 2, -1),
    Sketcher.Constraint("Symmetric", 11, 2, 69, 2, -1),
    Sketcher.Constraint("Symmetric", 10, 2, 70, 2, -1),
    Sketcher.Constraint("Symmetric", 9, 2, 71, 2, -1),
    Sketcher.Constraint("Symmetric", 8, 2, 72, 2, -1),
    Sketcher.Constraint("Symmetric", 7, 2, 73, 2, -1),
    Sketcher.Constraint("Symmetric", 6, 2, 74, 2, -1),
    Sketcher.Constraint("Symmetric", 5, 2, 75, 2, -1),
    Sketcher.Constraint("Symmetric", 4, 2, 76, 2, -1),
    Sketcher.Constraint("Symmetric", 3, 2, 77, 2, -1),
    Sketcher.Constraint("Symmetric", 2, 2, 78, 2, -1),
    Sketcher.Constraint("Symmetric", 1, 2, 79, 2, -1),
    Sketcher.Constraint("Symmetric", 0, 2, 80, 2, -1),
    Sketcher.Constraint("Perpendicular", 0, 1),
    Sketcher.Constraint("Perpendicular", 1, 2),
    Sketcher.Constraint("Perpendicular", 2, 3),
    Sketcher.Constraint("Perpendicular", 3, 4),
    Sketcher.Constraint("Perpendicular", 4, 5),
    Sketcher.Constraint("Perpendicular", 5, 6),
    Sketcher.Constraint("Perpendicular", 6, 7),
    Sketcher.Constraint("Perpendicular", 7, 8),
    Sketcher.Constraint("Perpendicular", 8, 9),
    Sketcher.Constraint("Perpendicular", 9, 10),
    Sketcher.Constraint("Perpendicular", 10, 11),
    Sketcher.Constraint("Perpendicular", 11, 12),
    Sketcher.Constraint("Perpendicular", 12, 13),
    Sketcher.Constraint("Perpendicular", 13, 14),
    Sketcher.Constraint("Perpendicular", 14, 15),
    Sketcher.Constraint("Perpendicular", 15, 16),
    Sketcher.Constraint("Perpendicular", 16, 17),
    Sketcher.Constraint("Perpendicular", 17, 18),
    Sketcher.Constraint("Perpendicular", 18, 19),
    Sketcher.Constraint("Perpendicular", 19, 20),
    Sketcher.Constraint("Perpendicular", 20, 21),
    Sketcher.Constraint("Perpendicular", 21, 22),
    Sketcher.Constraint("Perpendicular", 22, 23),
    Sketcher.Constraint("Perpendicular", 23, 24),
    Sketcher.Constraint("Parallel", 24, 25),
    Sketcher.Constraint("Perpendicular", 25, 26),
    Sketcher.Constraint("Perpendicular", 26, 27),
    Sketcher.Constraint("Perpendicular", 27, 28),
    Sketcher.Constraint("Perpendicular", 28, 29),
    Sketcher.Constraint("Perpendicular", 29, 30),
    Sketcher.Constraint("Perpendicular", 30, 31),
    Sketcher.Constraint("Perpendicular", 31, 32),
    Sketcher.Constraint("Perpendicular", 32, 33),
    Sketcher.Constraint("Perpendicular", 33, 34),
    Sketcher.Constraint("Perpendicular", 34, 35),
    Sketcher.Constraint("Perpendicular", 35, 36),
    Sketcher.Constraint("Perpendicular", 36, 37),
    Sketcher.Constraint("Perpendicular", 37, 38),
    Sketcher.Constraint("Perpendicular", 38, 39),
    Sketcher.Constraint("Perpendicular", 39, 40),
    Sketcher.Constraint("Equal", 0, 3),
    Sketcher.Constraint("Equal", 3, 5),
    Sketcher.Constraint("Equal", 2, 6),
    Sketcher.Constraint("Equal", 5, 8),
    Sketcher.Constraint("Equal", 7, 9),
    Sketcher.Constraint("Equal", 6, 10),
    Sketcher.Constraint("Equal", 8, 11),
    Sketcher.Constraint("Equal", 4, 12),
    Sketcher.Constraint("Equal", 11, 13),
    Sketcher.Constraint("Equal", 15, 17),
    Sketcher.Constraint("Equal", 14, 18),
    Sketcher.Constraint("Equal", 13, 19),
    Sketcher.Constraint("Equal", 12, 20),
    Sketcher.Constraint("Equal", 19, 21),
    Sketcher.Constraint("Equal", 18, 22),
    Sketcher.Constraint("Equal", 16, 24),
    Sketcher.Constraint("Equal", 21, 25),
    Sketcher.Constraint("Equal", 23, 26),
    Sketcher.Constraint("Equal", 22, 27),
    Sketcher.Constraint("Equal", 25, 28),
    Sketcher.Constraint("Equal", 20, 29),
    Sketcher.Constraint("Equal", 28, 30),
    Sketcher.Constraint("Equal", 30, 33),
    Sketcher.Constraint("Equal", 32, 34),
    Sketcher.Constraint("Equal", 31, 35),
    Sketcher.Constraint("Equal", 33, 36),
    Sketcher.Constraint("Equal", 29, 37),
    Sketcher.Constraint("Equal", 36, 38),
    Sketcher.Constraint("Angle", 1, Q("120 deg")),
    Sketcher.Constraint("Distance", 0, Q("5 mm")),
    Sketcher.Constraint("Distance", 1, Q("15 mm")),
    Sketcher.Constraint("Distance", 4, Q("20 mm")),
    Sketcher.Constraint("DistanceY", -1, 1, 24, 2, Q("55 mm")),
    Sketcher.Constraint("DistanceY", -1, 1, 0, 2, Q("93.75 mm")),
    Sketcher.Constraint("DistanceY", -1, 1, 8, 2, Q("73.75 mm")),
    Sketcher.Constraint("DistanceY", -1, 1, 25, 2, Q("33.75 mm")),
    Sketcher.Constraint("DistanceY", -1, 1, 33, 2, Q("13.75 mm")),
    Sketcher.Constraint("DistanceX", -1, 1, 4, 2, Q("36.188 mm")),
    Sketcher.Constraint("DistanceX", -1, 1, 12, 2, Q("1.547 mm")),
    Sketcher.Constraint("DistanceX", 20, 2, -1, 1, Q("33.094 mm")),
    Sketcher.Constraint("DistanceX", 29, 2, -1, 1, Q("67.735 mm")),
    Sketcher.Constraint("DistanceX", 37, 2, -1, 1, Q("102.376 mm")),
])
sketch5.setExpression("Constraints[190]", "Params.sketch5_length")
sketch5.setExpression("Constraints[191]", "Params.sketch5_length2")
sketch5.setExpression("Constraints[192]", "Params.sketch5_length3")
pad3 = body.newObject("PartDesign::Pad", "Pad002")
pad3.Profile = sketch5
pad3.setExpression("Length", "Params.pad3_length")

doc.recompute()
